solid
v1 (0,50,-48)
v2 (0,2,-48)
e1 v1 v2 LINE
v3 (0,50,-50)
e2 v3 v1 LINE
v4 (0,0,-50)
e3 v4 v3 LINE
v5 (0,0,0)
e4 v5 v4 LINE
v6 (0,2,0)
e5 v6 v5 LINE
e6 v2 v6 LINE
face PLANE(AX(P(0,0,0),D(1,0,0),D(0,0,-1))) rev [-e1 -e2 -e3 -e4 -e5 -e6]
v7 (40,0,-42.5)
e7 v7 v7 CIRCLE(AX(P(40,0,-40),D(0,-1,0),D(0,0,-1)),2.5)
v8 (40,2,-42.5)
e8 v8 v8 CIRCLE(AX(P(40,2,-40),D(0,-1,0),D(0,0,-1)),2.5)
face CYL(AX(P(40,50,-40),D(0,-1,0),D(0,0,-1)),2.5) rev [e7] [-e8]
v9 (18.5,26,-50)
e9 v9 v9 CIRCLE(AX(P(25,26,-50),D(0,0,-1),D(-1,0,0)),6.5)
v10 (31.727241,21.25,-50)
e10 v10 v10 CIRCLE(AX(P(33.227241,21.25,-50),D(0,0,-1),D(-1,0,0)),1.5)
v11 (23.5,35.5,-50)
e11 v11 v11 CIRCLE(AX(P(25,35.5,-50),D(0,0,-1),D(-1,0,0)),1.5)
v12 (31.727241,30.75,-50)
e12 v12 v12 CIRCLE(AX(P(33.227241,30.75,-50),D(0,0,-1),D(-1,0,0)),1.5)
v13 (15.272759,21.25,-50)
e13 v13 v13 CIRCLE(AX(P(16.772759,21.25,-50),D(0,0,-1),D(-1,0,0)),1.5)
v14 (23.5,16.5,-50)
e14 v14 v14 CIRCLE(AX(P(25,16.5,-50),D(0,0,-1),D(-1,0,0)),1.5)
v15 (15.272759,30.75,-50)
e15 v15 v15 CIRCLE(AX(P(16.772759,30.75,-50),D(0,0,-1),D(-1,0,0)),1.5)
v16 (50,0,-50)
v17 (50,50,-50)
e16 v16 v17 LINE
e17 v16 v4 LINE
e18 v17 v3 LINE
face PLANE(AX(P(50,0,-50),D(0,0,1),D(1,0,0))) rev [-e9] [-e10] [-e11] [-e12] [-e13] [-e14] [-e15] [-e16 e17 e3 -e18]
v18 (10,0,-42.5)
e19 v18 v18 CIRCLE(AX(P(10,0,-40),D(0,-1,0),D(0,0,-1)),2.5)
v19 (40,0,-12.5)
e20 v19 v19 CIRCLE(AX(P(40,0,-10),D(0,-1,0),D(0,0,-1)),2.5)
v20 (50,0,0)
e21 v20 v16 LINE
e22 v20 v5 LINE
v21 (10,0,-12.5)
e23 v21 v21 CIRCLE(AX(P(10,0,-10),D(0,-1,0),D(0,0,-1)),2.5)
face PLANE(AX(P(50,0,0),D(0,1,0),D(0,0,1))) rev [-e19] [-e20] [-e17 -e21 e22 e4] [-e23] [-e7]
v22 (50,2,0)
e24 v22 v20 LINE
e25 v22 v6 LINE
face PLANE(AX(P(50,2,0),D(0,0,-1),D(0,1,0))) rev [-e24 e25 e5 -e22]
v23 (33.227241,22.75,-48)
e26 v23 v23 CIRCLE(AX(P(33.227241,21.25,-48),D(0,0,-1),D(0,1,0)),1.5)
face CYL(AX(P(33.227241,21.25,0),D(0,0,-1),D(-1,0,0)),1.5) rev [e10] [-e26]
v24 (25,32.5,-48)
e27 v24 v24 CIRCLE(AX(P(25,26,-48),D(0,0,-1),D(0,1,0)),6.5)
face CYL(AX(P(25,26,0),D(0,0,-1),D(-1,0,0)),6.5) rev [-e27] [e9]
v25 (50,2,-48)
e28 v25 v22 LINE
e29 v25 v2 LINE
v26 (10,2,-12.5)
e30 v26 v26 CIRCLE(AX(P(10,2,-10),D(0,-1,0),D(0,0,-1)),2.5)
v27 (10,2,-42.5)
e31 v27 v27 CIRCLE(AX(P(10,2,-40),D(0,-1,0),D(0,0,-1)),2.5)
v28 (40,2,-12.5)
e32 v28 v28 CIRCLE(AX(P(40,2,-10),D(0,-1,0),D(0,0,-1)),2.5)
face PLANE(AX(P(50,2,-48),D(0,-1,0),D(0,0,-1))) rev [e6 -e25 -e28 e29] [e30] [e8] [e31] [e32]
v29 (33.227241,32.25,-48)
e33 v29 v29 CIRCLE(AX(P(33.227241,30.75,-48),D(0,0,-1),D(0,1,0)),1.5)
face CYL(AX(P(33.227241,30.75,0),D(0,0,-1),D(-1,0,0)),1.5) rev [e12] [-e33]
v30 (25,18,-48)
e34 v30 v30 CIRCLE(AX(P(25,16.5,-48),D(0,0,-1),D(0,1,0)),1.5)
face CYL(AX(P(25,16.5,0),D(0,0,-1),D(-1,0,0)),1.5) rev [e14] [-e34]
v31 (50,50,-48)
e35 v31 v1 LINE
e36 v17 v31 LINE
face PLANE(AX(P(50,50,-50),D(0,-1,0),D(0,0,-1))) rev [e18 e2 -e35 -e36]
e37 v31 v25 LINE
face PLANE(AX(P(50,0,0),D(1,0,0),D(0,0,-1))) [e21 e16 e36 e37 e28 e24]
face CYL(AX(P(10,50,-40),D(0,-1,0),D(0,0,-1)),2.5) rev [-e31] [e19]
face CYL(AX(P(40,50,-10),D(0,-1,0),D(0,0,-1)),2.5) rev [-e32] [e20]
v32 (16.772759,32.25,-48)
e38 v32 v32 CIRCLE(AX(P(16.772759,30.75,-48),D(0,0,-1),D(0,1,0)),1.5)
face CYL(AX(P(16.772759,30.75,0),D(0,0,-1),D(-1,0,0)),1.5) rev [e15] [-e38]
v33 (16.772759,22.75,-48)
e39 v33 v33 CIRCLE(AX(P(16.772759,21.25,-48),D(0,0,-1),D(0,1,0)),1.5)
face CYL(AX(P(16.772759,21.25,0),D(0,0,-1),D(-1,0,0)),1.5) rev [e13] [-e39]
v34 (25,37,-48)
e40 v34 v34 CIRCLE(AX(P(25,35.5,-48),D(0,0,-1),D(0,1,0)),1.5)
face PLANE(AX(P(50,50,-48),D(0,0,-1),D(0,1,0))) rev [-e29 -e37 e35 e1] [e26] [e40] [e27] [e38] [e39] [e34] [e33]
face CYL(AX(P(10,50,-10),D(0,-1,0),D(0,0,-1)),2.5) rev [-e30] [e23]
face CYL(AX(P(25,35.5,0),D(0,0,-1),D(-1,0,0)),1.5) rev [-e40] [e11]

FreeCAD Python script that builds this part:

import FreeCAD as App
import Part
import Sketcher

doc = App.newDocument("Part")
body = doc.addObject("PartDesign::Body", "Body")

sketch1 = body.newObject("Sketcher::SketchObject", "Sketch")
sketch1.AttachmentSupport = (doc.getObject("YZ_Plane"), [""])
sketch1.MapMode = "FlatFace"
sketch1.addGeometry(Part.LineSegment(App.Vector(0, 0, 0), App.Vector(0, -50, 0)), False)
sketch1.addGeometry(Part.LineSegment(App.Vector(0, -50, 0), App.Vector(50, -50, 0)), False)
sketch1.addGeometry(Part.LineSegment(App.Vector(50, -50, 0), App.Vector(50, -48, 0)), False)
sketch1.addGeometry(Part.LineSegment(App.Vector(50, -48, 0), App.Vector(2, -48, 0)), False)
sketch1.addGeometry(Part.LineSegment(App.Vector(2, -48, 0), App.Vector(2, 0, 0)), False)
sketch1.addGeometry(Part.LineSegment(App.Vector(2, 0, 0), App.Vector(0, 0, 0)), False)
sketch1.addConstraint(Sketcher.Constraint("Coincident", 0, 2, 1, 1))
sketch1.addConstraint(Sketcher.Constraint("Coincident", 1, 2, 2, 1))
sketch1.addConstraint(Sketcher.Constraint("Coincident", 2, 2, 3, 1))
sketch1.addConstraint(Sketcher.Constraint("Coincident", 3, 2, 4, 1))
sketch1.addConstraint(Sketcher.Constraint("Coincident", 4, 2, 5, 1))
sketch1.addConstraint(Sketcher.Constraint("Coincident", 5, 2, 0, 1))
sketch1.addConstraint(Sketcher.Constraint("Vertical", 0))
sketch1.addConstraint(Sketcher.Constraint("Horizontal", 1))
sketch1.addConstraint(Sketcher.Constraint("Vertical", 2))
sketch1.addConstraint(Sketcher.Constraint("Horizontal", 3))
sketch1.addConstraint(Sketcher.Constraint("Vertical", 4))
sketch1.addConstraint(Sketcher.Constraint("Horizontal", 5))
sketch1.addConstraint(Sketcher.Constraint("Coincident", 5, 2, -1, 1))
sketch1.addConstraint(Sketcher.Constraint("Equal", 1, 0))
sketch1.addConstraint(Sketcher.Constraint("Equal", 5, 2))
sketch1.addConstraint(Sketcher.Constraint("DistanceX", 1, 1, 1, 2, 50.0))
sketch1.addConstraint(Sketcher.Constraint("DistanceX", 3, 2, 3, 1, 48.0))
pad1 = body.newObject("PartDesign::Pad", "Pad")
pad1.Profile = sketch1
pad1.Length = 50

sketch2 = body.newObject("Sketcher::SketchObject", "Sketch001")
sketch2.AttachmentSupport = (doc.getObject("XY_Plane"), [""])
sketch2.MapMode = "FlatFace"
sketch2.AttachmentOffset = App.Placement(App.Vector(0, 0, -50), App.Rotation())
sketch2.addGeometry(Part.Circle(App.Vector(25, 26, 0), App.Vector(0, 0, 1), 6.5), False)
sketch2.addGeometry(Part.Circle(App.Vector(25, 35.5, 0), App.Vector(0, 0, 1), 1.5), False)
sketch2.addGeometry(Part.Circle(App.Vector(16.8, 30.8, 0), App.Vector(0, 0, 1), 1.5), False)
sketch2.addGeometry(Part.Circle(App.Vector(16.8, 21.2, 0), App.Vector(0, 0, 1), 1.5), False)
sketch2.addGeometry(Part.Circle(App.Vector(25, 16.5, 0), App.Vector(0, 0, 1), 1.5), False)
sketch2.addGeometry(Part.Circle(App.Vector(33.2, 21.2, 0), App.Vector(0, 0, 1), 1.5), False)
sketch2.addGeometry(Part.Circle(App.Vector(33.2, 30.8, 0), App.Vector(0, 0, 1), 1.5), False)
sketch2.addConstraint(Sketcher.Constraint("Equal", 1, 2))
sketch2.addConstraint(Sketcher.Constraint("Equal", 2, 3))
sketch2.addConstraint(Sketcher.Constraint("Equal", 3, 4))
sketch2.addConstraint(Sketcher.Constraint("Equal", 4, 5))
sketch2.addConstraint(Sketcher.Constraint("Equal", 5, 6))
sketch2.addConstraint(Sketcher.Constraint("Horizontal", 3, 3, 5, 3))
sketch2.addConstraint(Sketcher.Constraint("Horizontal", 2, 3, 6, 3))
sketch2.addConstraint(Sketcher.Constraint("Vertical", 0, 3, 1, 3))
sketch2.addConstraint(Sketcher.Constraint("Vertical", 2, 3, 3, 3))
sketch2.addConstraint(Sketcher.Constraint("Vertical", 1, 3, 4, 3))
sketch2.addConstraint(Sketcher.Constraint("Vertical", 5, 3, 6, 3))
sketch2.addConstraint(Sketcher.Constraint("Diameter", 0, 13.0))
sketch2.addConstraint(Sketcher.Constraint("Diameter", 1, 3.0))
sketch2.addConstraint(Sketcher.Constraint("DistanceX", -1, 1, 0, 3, 25.0))
sketch2.addConstraint(Sketcher.Constraint("DistanceY", -1, 1, 0, 3, 26.0))
sketch2.addConstraint(Sketcher.Constraint("DistanceY", 4, 3, 1, 3, 19.0))
sketch2.addConstraint(Sketcher.Constraint("DistanceY", -1, 1, 1, 3, 35.5))
sketch2.addConstraint(Sketcher.Constraint("DistanceY", 3, 3, 2, 3, 9.5))
sketch2.addConstraint(Sketcher.Constraint("DistanceY", -1, 1, 2, 3, 30.75))
sketch2.addConstraint(Sketcher.Constraint("DistanceX", -1, 1, 2, 3, 16.772759))
sketch2.addConstraint(Sketcher.Constraint("DistanceX", -1, 1, 5, 3, 33.227241))
pocket1 = body.newObject("PartDesign::Pocket", "Pocket")
pocket1.Profile = sketch2
pocket1.Length = 50
pocket1.Reversed = True

sketch3 = body.newObject("Sketcher::SketchObject", "Sketch002")
sketch3.AttachmentSupport = (doc.getObject("XZ_Plane"), [""])
sketch3.MapMode = "FlatFace"
sketch3.addGeometry(Part.Circle(App.Vector(10, -10, 0), App.Vector(0, 0, 1), 2.5), False)
sketch3.addGeometry(Part.Circle(App.Vector(40, -10, 0), App.Vector(0, 0, 1), 2.5), False)
sketch3.addGeometry(Part.Circle(App.Vector(10, -40, 0), App.Vector(0, 0, 1), 2.5), False)
sketch3.addGeometry(Part.Circle(App.Vector(40, -40, 0), App.Vector(0, 0, 1), 2.5), False)
sketch3.addConstraint(Sketcher.Constraint("Equal", 0, 1))
sketch3.addConstraint(Sketcher.Constraint("Equal", 1, 2))
sketch3.addConstraint(Sketcher.Constraint("Equal", 2, 3))
sketch3.addConstraint(Sketcher.Constraint("Horizontal", 0, 3, 1, 3))
sketch3.addConstraint(Sketcher.Constraint("Horizontal", 2, 3, 3, 3))
sketch3.addConstraint(Sketcher.Constraint("Vertical", 0, 3, 2, 3))
sketch3.addConstraint(Sketcher.Constraint("Vertical", 1, 3, 3, 3))
sketch3.addConstraint(Sketcher.Constraint("Diameter", 0, 5.0))
sketch3.addConstraint(Sketcher.Constraint("DistanceX", -1, 1, 0, 3, 10.0))
sketch3.addConstraint(Sketcher.Constraint("DistanceY", 0, 3, -1, 1, 10.0))
sketch3.addConstraint(Sketcher.Constraint("DistanceX", -1, 1, 1, 3, 40.0))
sketch3.addConstraint(Sketcher.Constraint("DistanceY", 2, 3, -1, 1, 40.0))
pocket2 = body.newObject("PartDesign::Pocket", "Pocket001")
pocket2.Profile = sketch3
pocket2.Length = 50

doc.recompute()
